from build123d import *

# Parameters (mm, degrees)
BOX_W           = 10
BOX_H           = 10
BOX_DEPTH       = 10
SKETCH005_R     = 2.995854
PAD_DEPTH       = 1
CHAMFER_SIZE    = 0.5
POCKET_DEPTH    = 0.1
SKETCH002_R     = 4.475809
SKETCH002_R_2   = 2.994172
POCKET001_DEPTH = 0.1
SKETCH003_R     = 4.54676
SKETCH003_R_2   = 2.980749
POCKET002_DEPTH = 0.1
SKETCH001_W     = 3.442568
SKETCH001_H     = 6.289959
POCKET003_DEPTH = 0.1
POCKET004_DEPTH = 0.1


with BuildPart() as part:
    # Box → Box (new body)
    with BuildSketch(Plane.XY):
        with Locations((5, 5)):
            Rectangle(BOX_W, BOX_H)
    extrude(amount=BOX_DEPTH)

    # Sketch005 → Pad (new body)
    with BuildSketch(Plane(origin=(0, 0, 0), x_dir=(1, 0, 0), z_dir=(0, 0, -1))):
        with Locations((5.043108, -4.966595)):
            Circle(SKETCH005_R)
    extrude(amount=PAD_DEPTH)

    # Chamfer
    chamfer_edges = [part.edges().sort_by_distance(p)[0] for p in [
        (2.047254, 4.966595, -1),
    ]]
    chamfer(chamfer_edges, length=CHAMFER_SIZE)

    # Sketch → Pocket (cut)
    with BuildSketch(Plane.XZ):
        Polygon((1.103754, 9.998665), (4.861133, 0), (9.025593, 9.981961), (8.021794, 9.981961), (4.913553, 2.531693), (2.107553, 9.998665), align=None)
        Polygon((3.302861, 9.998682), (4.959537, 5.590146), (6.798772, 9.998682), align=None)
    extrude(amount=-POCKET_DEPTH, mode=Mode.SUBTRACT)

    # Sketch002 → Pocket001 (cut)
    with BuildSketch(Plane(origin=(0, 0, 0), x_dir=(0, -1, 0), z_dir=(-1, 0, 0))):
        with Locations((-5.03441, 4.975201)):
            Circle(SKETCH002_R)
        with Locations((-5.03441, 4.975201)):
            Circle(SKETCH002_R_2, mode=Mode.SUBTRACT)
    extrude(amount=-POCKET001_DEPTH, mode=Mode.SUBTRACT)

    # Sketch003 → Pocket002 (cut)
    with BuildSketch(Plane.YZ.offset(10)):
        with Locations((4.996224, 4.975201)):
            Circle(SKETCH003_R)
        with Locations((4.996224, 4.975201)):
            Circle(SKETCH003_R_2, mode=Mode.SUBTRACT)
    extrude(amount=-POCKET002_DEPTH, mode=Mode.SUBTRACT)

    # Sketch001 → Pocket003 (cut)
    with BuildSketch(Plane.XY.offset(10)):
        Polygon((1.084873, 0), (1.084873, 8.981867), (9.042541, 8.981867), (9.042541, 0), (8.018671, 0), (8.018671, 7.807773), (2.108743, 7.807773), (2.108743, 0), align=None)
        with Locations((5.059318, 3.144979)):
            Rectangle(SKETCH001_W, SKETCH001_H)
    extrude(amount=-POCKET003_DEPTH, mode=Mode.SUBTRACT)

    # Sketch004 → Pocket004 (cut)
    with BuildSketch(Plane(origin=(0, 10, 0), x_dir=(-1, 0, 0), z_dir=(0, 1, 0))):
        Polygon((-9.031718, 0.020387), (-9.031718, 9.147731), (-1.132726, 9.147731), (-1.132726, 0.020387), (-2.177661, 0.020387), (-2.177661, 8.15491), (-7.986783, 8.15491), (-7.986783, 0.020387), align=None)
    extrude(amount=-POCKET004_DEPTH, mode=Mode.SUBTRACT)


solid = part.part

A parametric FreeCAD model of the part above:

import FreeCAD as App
import Part
import Sketcher

V = App.Vector
Q = App.Units.Quantity


def edges_at(feature, points):
    """Names of the edges that pass closest to the given points."""
    edges = feature.Shape.Edges
    near = lambda p: min(range(len(edges)), key=lambda i: edges[i].distToShape(Part.Vertex(*p))[0])
    return sorted({f"Edge{near(p) + 1}" for p in points})


def add_polygon(sketch, points):
    """Adds a closed chain of lines whose ends are joined by coincident constraints."""
    first, n = sketch.GeometryCount, len(points)
    for a, b in zip(points, points[1:] + points[:1]):
        sketch.addGeometry(Part.LineSegment(App.Vector(*a, 0), App.Vector(*b, 0)), False)
    for i in range(n):
        sketch.addConstraint(Sketcher.Constraint("Coincident", first + i, 2, first + (i + 1) % n, 1))

doc = App.newDocument("Part")
params = doc.addObject("Spreadsheet::Sheet", "Params")
for row, (alias, value) in enumerate([
    ("sketch1_width", "10 mm"),
    ("pad1_length", "10 mm"),
    ("pad2_length", "1 mm"),
    ("chamfer_size", "0.5 mm"),
    ("pocket1_length", "0.1 mm"),
    ("pocket2_length", "0.1 mm"),
    ("pocket3_length", "0.1 mm"),
    ("pocket4_length", "0.1 mm"),
    ("pocket5_length", "0.1 mm"),
], start=1):
    params.set(f"A{row}", alias)
    params.set(f"B{row}", "=" + value)
    params.setAlias(f"B{row}", alias)

body = doc.addObject("PartDesign::Body", "Body")

sketch1 = body.newObject("Sketcher::SketchObject", "Sketch")
sketch1.AttachmentSupport = (doc.getObject("XY_Plane"), [""])
sketch1.MapMode = "FlatFace"
add_polygon(sketch1, [(0, 10), (0, 0), (10, 0), (10, 10)])
sketch1.addConstraint([
    Sketcher.Constraint("Vertical", 0),
    Sketcher.Constraint("Horizontal", 1),
    Sketcher.Constraint("Vertical", 2),
    Sketcher.Constraint("Horizontal", 3),
    Sketcher.Constraint("Coincident", 0, 2, -1, 1),
    Sketcher.Constraint("Equal", 3, 0),
    Sketcher.Constraint("DistanceX", 1, 1, 1, 2, Q("10 mm")),
])
sketch1.setExpression("Constraints[10]", "Params.sketch1_width")
pad1 = body.newObject("PartDesign::Pad", "Pad")
pad1.Profile = sketch1
pad1.setExpression("Length", "Params.pad1_length")

sketch2 = body.newObject("Sketcher::SketchObject", "Sketch001")
sketch2.AttachmentSupport = (doc.getObject("XY_Plane"), [""])
sketch2.MapMode = "FlatFace"
sketch2.addGeometry(Part.Circle(V(5, 5, 0), V(0, 0, 1), 3), False)
sketch2.addConstraint([
    Sketcher.Constraint("Diameter", 0, Q("5.991708 mm")),
    Sketcher.Constraint("DistanceX", -1, 1, 0, 3, Q("5.043108 mm")),
    Sketcher.Constraint("DistanceY", -1, 1, 0, 3, Q("4.966595 mm")),
])
pad2 = body.newObject("PartDesign::Pad", "Pad001")
pad2.Profile = sketch2
pad2.setExpression("Length", "Params.pad2_length")
pad2.Reversed = True
doc.recompute()

chamfer = body.newObject("PartDesign::Chamfer", "Chamfer")
chamfer.Base = (pad2, edges_at(pad2, [(2.047, 4.967, -1)]))
chamfer.setExpression("Size", "Params.chamfer_size")

sketch3 = body.newObject("Sketcher::SketchObject", "Sketch002")
sketch3.AttachmentSupport = (doc.getObject("XZ_Plane"), [""])
sketch3.MapMode = "FlatFace"
add_polygon(sketch3, [(1.1, 10), (4.9, 0), (9, 10), (8, 10), (4.9, 2.5), (2.1, 10)])
add_polygon(sketch3, [(3.3, 10), (5, 5.6), (6.8, 10)])
sketch3.addConstraint([
    Sketcher.Constraint("Horizontal", 2),
    Sketcher.Constraint("Horizontal", 5),
    Sketcher.Constraint("Horizontal", 8),
    Sketcher.Constraint("PointOnObject", 0, 2, -1),
    Sketcher.Constraint("Parallel", 1, 3),
    Sketcher.Constraint("Parallel", 0, 4),
    Sketcher.Constraint("Parallel", 4, 6),
    Sketcher.Constraint("Parallel", 3, 7),
    Sketcher.Constraint("Equal", 2, 5),
    Sketcher.Constraint("DistanceX", 2, 2, 2, 1, Q("1.003799 mm")),
    Sketcher.Constraint("DistanceX", 4, 2, 3, 2, Q("2.806 mm")),
    Sketcher.Constraint("Distance", 4, Q("7.976798 mm")),
    Sketcher.Constraint("DistanceX", 8, 2, 8, 1, Q("3.495911 mm")),
    Sketcher.Constraint("Distance", 0, Q("10.681348 mm")),
    Sketcher.Constraint("Distance", 3, Q("8.072649 mm")),
    Sketcher.Constraint("DistanceX", -1, 1, 7, 2, Q("6.798772 mm")),
    Sketcher.Constraint("DistanceY", 6, 2, 4, 2, Q("4.408519 mm")),
    Sketcher.Constraint("DistanceX", 7, 2, 1, 2, Q("2.226821 mm")),
])
pocket1 = body.newObject("PartDesign::Pocket", "Pocket")
pocket1.Profile = sketch3
pocket1.setExpression("Length", "Params.pocket1_length")

sketch4 = body.newObject("Sketcher::SketchObject", "Sketch003")
sketch4.AttachmentSupport = (doc.getObject("YZ_Plane"), [""])
sketch4.MapMode = "FlatFace"
sketch4.addGeometry([
    Part.Circle(V(5, 5, 0), V(0, 0, 1), 4.5),
    Part.Circle(V(5, 5, 0), V(0, 0, 1), 3),
], False)
sketch4.addConstraint([
    Sketcher.Constraint("Coincident", 1, 3, 0, 3),
    Sketcher.Constraint("Diameter", 0, Q("8.951618 mm")),
    Sketcher.Constraint("Diameter", 1, Q("5.988344 mm")),
    Sketcher.Constraint("DistanceY", -1, 1, 0, 3, Q("4.975201 mm")),
    Sketcher.Constraint("DistanceX", -1, 1, 0, 3, Q("5.03441 mm")),
])
pocket2 = body.newObject("PartDesign::Pocket", "Pocket001")
pocket2.Profile = sketch4
pocket2.setExpression("Length", "Params.pocket2_length")
pocket2.Reversed = True

sketch5 = body.newObject("Sketcher::SketchObject", "Sketch004")
sketch5.AttachmentSupport = (doc.getObject("YZ_Plane"), [""])
sketch5.MapMode = "FlatFace"
sketch5.AttachmentOffset = App.Placement(V(0, 0, 10), App.Rotation())
sketch5.addGeometry([
    Part.Circle(V(5, 5, 0), V(0, 0, 1), 4.5),
    Part.Circle(V(5, 5, 0), V(0, 0, 1), 3),
], False)
sketch5.addConstraint([
    Sketcher.Constraint("Coincident", 1, 3, 0, 3),
    Sketcher.Constraint("Diameter", 0, Q("9.09352 mm")),
    Sketcher.Constraint("Diameter", 1, Q("5.961498 mm")),
    Sketcher.Constraint("DistanceY", -1, 1, 0, 3, Q("4.975201 mm")),
    Sketcher.Constraint("DistanceX", -1, 1, 0, 3, Q("4.996224 mm")),
])
pocket3 = body.newObject("PartDesign::Pocket", "Pocket002")
pocket3.Profile = sketch5
pocket3.setExpression("Length", "Params.pocket3_length")

sketch6 = body.newObject("Sketcher::SketchObject", "Sketch005")
sketch6.AttachmentSupport = (doc.getObject("XY_Plane"), [""])
sketch6.MapMode = "FlatFace"
sketch6.AttachmentOffset = App.Placement(V(0, 0, 10), App.Rotation())
add_polygon(sketch6, [(1.1, 9), (1.1, 0), (2.1, 0), (2.1, 7.8), (8, 7.8), (8, 0), (9, 0), (9, 9)])
add_polygon(sketch6, [(3.3, 6.3), (3.3, 0), (6.8, 0), (6.8, 6.3)])
sketch6.addConstraint([
    Sketcher.Constraint("Vertical", 0),
    Sketcher.Constraint("Horizontal", 1),
    Sketcher.Constraint("Vertical", 2),
    Sketcher.Constraint("Horizontal", 3),
    Sketcher.Constraint("Vertical", 4),
    Sketcher.Constraint("Horizontal", 5),
    Sketcher.Constraint("Vertical", 6),
    Sketcher.Constraint("Horizontal", 7),
    Sketcher.Constraint("Vertical", 8),
    Sketcher.Constraint("Horizontal", 9),
    Sketcher.Constraint("Vertical", 10),
    Sketcher.Constraint("Horizontal", 11),
    Sketcher.Constraint("PointOnObject", 0, 2, -1),
    Sketcher.Constraint("PointOnObject", 4, 2, -1),
    Sketcher.Constraint("PointOnObject", 8, 2, -1),
    Sketcher.Constraint("Equal", 1, 5),
    Sketcher.Constraint("DistanceX", 1, 1, 1, 2, Q("1.02387 mm")),
    Sketcher.Constraint("DistanceX", 9, 1, 9, 2, Q("3.442568 mm")),
    Sketcher.Constraint("DistanceY", 8, 2, 8, 1, Q("6.289959 mm")),
    Sketcher.Constraint("DistanceX", 3, 1, 3, 2, Q("5.909928 mm")),
    Sketcher.Constraint("DistanceY", 0, 2, 0, 1, Q("8.981867 mm")),
    Sketcher.Constraint("DistanceY", 2, 1, 2, 2, Q("7.807773 mm")),
    Sketcher.Constraint("DistanceX", -1, 1, 3, 2, Q("8.018671 mm")),
    Sketcher.Constraint("DistanceX", 1, 2, 8, 2, Q("1.229291 mm")),
])
pocket4 = body.newObject("PartDesign::Pocket", "Pocket003")
pocket4.Profile = sketch6
pocket4.setExpression("Length", "Params.pocket4_length")

sketch7 = body.newObject("Sketcher::SketchObject", "Sketch006")
sketch7.AttachmentSupport = (doc.getObject("XZ_Plane"), [""])
sketch7.MapMode = "FlatFace"
sketch7.AttachmentOffset = App.Placement(V(0, 0, -10), App.Rotation())
add_polygon(sketch7, [(9, 9.1), (9, 0), (8, 0), (8, 8.2), (2.2, 8.2), (2.2, 0), (1.1, 0), (1.1, 9.1)])
sketch7.addConstraint([
    Sketcher.Constraint("Vertical", 0),
    Sketcher.Constraint("Horizontal", 1),
    Sketcher.Constraint("Vertical", 2),
    Sketcher.Constraint("Horizontal", 3),
    Sketcher.Constraint("Vertical", 4),
    Sketcher.Constraint("Horizontal", 5),
    Sketcher.Constraint("Vertical", 6),
    Sketcher.Constraint("Horizontal", 7),
    Sketcher.Constraint("Horizontal", 1, 2, 4, 2),
    Sketcher.Constraint("Equal", 1, 5),
    Sketcher.Constraint("DistanceX", 7, 1, 7, 2, Q("7.898992 mm")),
    Sketcher.Constraint("DistanceX", 1, 2, 1, 1, Q("1.044935 mm")),
    Sketcher.Constraint("DistanceY", 0, 2, 0, 1, Q("9.127344 mm")),
    Sketcher.Constraint("DistanceY", 2, 1, 2, 2, Q("8.134523 mm")),
    Sketcher.Constraint("DistanceY", -1, 1, 2, 2, Q("8.15491 mm")),
    Sketcher.Constraint("DistanceX", -1, 1, 3, 2, Q("2.177661 mm")),
])
pocket5 = body.newObject("PartDesign::Pocket", "Pocket004")
pocket5.Profile = sketch7
pocket5.setExpression("Length", "Params.pocket5_length")
pocket5.Reversed = True

doc.recompute()
